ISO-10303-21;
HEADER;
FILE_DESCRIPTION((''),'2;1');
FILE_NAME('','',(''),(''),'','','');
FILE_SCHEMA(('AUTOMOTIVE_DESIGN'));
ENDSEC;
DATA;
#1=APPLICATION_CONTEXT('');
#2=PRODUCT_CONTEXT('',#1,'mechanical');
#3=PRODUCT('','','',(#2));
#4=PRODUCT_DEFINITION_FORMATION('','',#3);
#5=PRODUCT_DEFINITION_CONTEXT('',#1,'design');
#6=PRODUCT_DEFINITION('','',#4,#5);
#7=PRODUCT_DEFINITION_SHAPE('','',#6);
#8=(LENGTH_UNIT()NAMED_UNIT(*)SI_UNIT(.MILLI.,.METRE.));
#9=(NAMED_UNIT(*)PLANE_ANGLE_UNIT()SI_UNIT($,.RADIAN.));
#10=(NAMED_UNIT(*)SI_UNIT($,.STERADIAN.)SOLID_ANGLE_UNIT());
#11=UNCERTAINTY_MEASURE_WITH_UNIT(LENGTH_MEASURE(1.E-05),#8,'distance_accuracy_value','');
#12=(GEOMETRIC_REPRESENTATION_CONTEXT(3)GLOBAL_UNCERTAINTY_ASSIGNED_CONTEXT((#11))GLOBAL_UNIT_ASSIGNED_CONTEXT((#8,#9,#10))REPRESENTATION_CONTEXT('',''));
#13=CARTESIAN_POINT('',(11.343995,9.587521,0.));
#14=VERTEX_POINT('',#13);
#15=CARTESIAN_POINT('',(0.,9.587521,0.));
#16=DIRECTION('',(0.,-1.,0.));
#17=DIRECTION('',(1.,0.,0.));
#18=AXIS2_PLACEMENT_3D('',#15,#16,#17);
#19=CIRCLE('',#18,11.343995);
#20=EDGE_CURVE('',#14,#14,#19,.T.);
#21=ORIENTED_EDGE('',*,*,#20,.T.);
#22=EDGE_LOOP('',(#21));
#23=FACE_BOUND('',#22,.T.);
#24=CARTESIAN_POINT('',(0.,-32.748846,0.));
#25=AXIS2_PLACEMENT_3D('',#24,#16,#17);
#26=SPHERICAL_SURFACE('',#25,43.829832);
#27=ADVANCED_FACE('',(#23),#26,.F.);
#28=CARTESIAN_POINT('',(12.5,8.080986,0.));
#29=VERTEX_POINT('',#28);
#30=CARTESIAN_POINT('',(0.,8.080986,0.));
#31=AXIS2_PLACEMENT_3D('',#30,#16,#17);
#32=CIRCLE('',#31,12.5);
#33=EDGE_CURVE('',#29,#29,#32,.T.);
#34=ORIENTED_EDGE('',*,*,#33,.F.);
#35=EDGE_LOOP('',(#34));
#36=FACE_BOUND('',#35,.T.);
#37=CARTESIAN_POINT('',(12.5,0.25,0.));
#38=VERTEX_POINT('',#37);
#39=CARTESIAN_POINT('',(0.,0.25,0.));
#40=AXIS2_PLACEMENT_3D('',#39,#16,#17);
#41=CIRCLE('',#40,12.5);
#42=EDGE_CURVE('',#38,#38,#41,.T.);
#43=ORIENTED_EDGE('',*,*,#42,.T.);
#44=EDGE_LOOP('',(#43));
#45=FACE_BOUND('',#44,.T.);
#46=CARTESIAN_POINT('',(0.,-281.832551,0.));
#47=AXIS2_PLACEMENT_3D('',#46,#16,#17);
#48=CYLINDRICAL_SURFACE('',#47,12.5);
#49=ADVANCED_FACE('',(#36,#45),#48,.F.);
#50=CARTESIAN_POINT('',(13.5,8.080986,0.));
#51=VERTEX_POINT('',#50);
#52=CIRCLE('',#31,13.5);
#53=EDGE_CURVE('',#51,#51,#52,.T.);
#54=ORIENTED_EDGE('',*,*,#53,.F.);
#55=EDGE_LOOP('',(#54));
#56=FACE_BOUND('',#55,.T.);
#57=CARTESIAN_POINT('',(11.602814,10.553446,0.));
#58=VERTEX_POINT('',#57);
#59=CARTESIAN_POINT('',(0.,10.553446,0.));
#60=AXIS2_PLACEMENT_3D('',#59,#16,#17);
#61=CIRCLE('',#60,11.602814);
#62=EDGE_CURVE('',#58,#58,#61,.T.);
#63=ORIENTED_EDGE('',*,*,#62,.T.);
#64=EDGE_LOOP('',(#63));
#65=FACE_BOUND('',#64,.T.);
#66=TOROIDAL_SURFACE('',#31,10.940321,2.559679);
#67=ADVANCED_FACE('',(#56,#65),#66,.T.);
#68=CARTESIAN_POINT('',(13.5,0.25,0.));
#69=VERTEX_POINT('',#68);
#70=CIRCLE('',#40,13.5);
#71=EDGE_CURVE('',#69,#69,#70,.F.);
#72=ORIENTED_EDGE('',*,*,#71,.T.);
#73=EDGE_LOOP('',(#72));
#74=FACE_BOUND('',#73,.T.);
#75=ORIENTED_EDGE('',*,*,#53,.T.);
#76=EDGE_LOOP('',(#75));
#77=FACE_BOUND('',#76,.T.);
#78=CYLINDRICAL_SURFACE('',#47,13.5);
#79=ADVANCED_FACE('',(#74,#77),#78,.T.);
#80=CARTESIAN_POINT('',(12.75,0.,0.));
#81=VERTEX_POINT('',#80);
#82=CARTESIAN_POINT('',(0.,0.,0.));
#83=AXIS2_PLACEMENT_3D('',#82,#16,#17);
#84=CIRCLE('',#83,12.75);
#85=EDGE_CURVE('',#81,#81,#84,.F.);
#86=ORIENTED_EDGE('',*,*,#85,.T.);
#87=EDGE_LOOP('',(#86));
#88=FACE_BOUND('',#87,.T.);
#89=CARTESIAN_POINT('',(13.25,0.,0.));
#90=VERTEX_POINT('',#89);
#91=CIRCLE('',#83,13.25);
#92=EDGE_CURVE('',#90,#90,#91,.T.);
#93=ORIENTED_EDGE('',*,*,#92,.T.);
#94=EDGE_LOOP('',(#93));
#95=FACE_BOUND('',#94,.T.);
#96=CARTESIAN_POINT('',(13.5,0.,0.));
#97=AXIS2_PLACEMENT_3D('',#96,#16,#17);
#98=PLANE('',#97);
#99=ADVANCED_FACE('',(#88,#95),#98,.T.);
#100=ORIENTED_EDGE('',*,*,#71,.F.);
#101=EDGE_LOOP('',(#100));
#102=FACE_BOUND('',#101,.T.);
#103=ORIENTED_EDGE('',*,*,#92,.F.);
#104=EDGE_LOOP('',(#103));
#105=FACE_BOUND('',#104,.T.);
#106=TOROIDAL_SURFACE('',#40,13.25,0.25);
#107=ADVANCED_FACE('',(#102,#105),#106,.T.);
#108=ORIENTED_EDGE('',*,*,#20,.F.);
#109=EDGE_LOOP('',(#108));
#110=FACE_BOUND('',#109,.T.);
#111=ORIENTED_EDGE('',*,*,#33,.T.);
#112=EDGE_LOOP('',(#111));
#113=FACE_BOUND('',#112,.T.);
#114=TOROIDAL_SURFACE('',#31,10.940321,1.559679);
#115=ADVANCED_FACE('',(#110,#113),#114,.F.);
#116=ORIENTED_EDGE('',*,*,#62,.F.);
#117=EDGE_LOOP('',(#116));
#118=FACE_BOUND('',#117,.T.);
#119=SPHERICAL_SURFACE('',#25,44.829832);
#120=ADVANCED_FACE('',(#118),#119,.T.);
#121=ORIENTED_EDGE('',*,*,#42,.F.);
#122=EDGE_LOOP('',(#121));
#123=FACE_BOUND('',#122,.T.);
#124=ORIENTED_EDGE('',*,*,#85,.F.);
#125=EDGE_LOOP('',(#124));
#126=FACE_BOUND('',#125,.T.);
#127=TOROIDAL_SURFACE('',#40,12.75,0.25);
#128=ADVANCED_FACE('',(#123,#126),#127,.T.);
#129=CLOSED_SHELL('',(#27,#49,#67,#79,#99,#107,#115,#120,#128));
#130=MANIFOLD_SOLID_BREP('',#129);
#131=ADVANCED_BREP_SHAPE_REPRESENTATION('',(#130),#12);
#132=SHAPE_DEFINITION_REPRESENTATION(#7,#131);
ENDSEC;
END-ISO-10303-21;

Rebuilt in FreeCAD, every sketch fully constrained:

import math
import FreeCAD as App
import Part
import Sketcher
Q = App.Units.Quantity


def edges_at(feature, points):
    """Names of the edges that pass closest to the given points."""
    edges = feature.Shape.Edges
    near = lambda p: min(range(len(edges)), key=lambda i: edges[i].distToShape(Part.Vertex(*p))[0])
    return sorted({f"Edge{near(p) + 1}" for p in points})

doc = App.newDocument("Part")
body = doc.addObject("PartDesign::Body", "Body")

sketch1 = body.newObject("Sketcher::SketchObject", "Sketch")
sketch1.AttachmentSupport = (doc.getObject("XY_Plane"), [""])
sketch1.MapMode = "FlatFace"
sketch1.addGeometry([
    Part.LineSegment(App.Vector(13.5, 0, 0), App.Vector(13.5, 8.1, 0)),
    Part.ArcOfCircle(Part.Circle(App.Vector(10.9, 8.1, 0), App.Vector(0, 0, 1), 2.6), math.radians(0), math.radians(75)),
    Part.ArcOfCircle(Part.Circle(App.Vector(0, -32.7, 0), App.Vector(0, 0, 1), 44.8), math.radians(75), math.radians(90)),
    Part.LineSegment(App.Vector(0, 12.1, 0), App.Vector(0, 11.1, 0)),
    Part.ArcOfCircle(Part.Circle(App.Vector(0, -32.7, 0), App.Vector(0, 0, 1), 43.8), math.radians(75), math.radians(90)),
    Part.ArcOfCircle(Part.Circle(App.Vector(10.9, 8.1, 0), App.Vector(0, 0, 1), 1.6), math.radians(0), math.radians(75)),
    Part.LineSegment(App.Vector(12.5, 8.1, 0), App.Vector(12.5, 0, 0)),
    Part.LineSegment(App.Vector(12.5, 0, 0), App.Vector(13.5, 0, 0)),
], False)
sketch1.addConstraint([
    Sketcher.Constraint("Tangent", 0, 2, 1, 1),
    Sketcher.Constraint("Tangent", 1, 2, 2, 1),
    Sketcher.Constraint("Coincident", 2, 2, 3, 1),
    Sketcher.Constraint("Coincident", 3, 2, 4, 2),
    Sketcher.Constraint("Tangent", 4, 1, 5, 2),
    Sketcher.Constraint("Tangent", 5, 1, 6, 1),
    Sketcher.Constraint("Coincident", 6, 2, 7, 1),
    Sketcher.Constraint("Coincident", 7, 2, 0, 1),
    Sketcher.Constraint("Vertical", 0),
    Sketcher.Constraint("Vertical", 3),
    Sketcher.Constraint("Vertical", 6),
    Sketcher.Constraint("Horizontal", 7),
    Sketcher.Constraint("Coincident", 4, 3, 2, 3),
    Sketcher.Constraint("Coincident", 5, 3, 1, 3),
    Sketcher.Constraint("PointOnObject", 2, 3, -2),
    Sketcher.Constraint("PointOnObject", 2, 2, -2),
    Sketcher.Constraint("PointOnObject", 6, 2, -1),
    Sketcher.Constraint("DistanceX", 7, 1, 7, 2, Q("1 mm")),
    Sketcher.Constraint("DistanceY", 5, 3, 2, 2, Q("4 mm")),
    Sketcher.Constraint("DistanceX", -1, 1, 0, 2, Q("13.5 mm")),
    Sketcher.Constraint("Radius", 1, Q("2.559679 mm")),
    Sketcher.Constraint("DistanceY", 0, 1, 0, 2, Q("8.080986 mm")),
])
revolution = body.newObject("PartDesign::Revolution", "Revolution")
revolution.Profile = sketch1
revolution.ReferenceAxis = (sketch1, ["V_Axis"])
revolution.Angle = 360
doc.recompute()

fillet = body.newObject("PartDesign::Fillet", "Fillet")
fillet.Base = (revolution, edges_at(revolution, [(-13.5, 0, 0), (-12.5, 0, 0)]))
fillet.Radius = 0.25

doc.recompute()
